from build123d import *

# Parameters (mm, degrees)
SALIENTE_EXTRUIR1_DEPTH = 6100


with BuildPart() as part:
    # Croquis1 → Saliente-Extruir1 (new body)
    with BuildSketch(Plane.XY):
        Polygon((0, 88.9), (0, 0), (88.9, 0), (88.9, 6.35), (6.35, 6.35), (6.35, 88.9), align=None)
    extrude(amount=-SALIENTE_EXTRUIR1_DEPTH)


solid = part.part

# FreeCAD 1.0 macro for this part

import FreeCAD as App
import Part
import Sketcher

V = App.Vector
Q = App.Units.Quantity

doc = App.newDocument("Part")
body = doc.addObject("PartDesign::Body", "Body")

# Sketch on XY plane
sketch1 = doc.addObject("Sketcher::SketchObject", "Sketch")
body.addObject(sketch1)
sketch1.AttachmentSupport = (doc.XY_Plane, [""])
sketch1.MapMode = "FlatFace"
sketch1.addGeometry([
    Part.LineSegment(V(0, 89, 0), V(0, 0, 0)),  # 0
    Part.LineSegment(V(0, 0, 0), V(89, 0, 0)),  # 1
    Part.LineSegment(V(89, 0, 0), V(89, 6, 0)),  # 2
    Part.LineSegment(V(89, 6, 0), V(6, 6, 0)),  # 3
    Part.LineSegment(V(6, 6, 0), V(6, 89, 0)),  # 4
    Part.LineSegment(V(6, 89, 0), V(0, 89, 0)),  # 5
], False)
sketch1.addConstraint([
    Sketcher.Constraint("Coincident", 0, 2, 1, 1),
    Sketcher.Constraint("Coincident", 1, 2, 2, 1),
    Sketcher.Constraint("Coincident", 2, 2, 3, 1),
    Sketcher.Constraint("Coincident", 3, 2, 4, 1),
    Sketcher.Constraint("Coincident", 4, 2, 5, 1),
    Sketcher.Constraint("Coincident", 5, 2, 0, 1),
    Sketcher.Constraint("Vertical", 0),
    Sketcher.Constraint("Horizontal", 1),
    Sketcher.Constraint("Vertical", 2),
    Sketcher.Constraint("Horizontal", 3),
    Sketcher.Constraint("Vertical", 4),
    Sketcher.Constraint("Horizontal", 5),
    Sketcher.Constraint("Coincident", 0, 2, -1, 1),
    Sketcher.Constraint("Equal", 1, 0),
    Sketcher.Constraint("Equal", 5, 2),
    Sketcher.Constraint("DistanceX", 1, 1, 1, 2, Q("3.5 in")),
    Sketcher.Constraint("DistanceX", 3, 2, 3, 1, Q("3.25 in")),
])
pad1 = doc.addObject("PartDesign::Pad", "Pad")
body.addObject(pad1)
pad1.Profile = sketch1
pad1.Length = 6100
pad1.Reversed = True

doc.recompute()
